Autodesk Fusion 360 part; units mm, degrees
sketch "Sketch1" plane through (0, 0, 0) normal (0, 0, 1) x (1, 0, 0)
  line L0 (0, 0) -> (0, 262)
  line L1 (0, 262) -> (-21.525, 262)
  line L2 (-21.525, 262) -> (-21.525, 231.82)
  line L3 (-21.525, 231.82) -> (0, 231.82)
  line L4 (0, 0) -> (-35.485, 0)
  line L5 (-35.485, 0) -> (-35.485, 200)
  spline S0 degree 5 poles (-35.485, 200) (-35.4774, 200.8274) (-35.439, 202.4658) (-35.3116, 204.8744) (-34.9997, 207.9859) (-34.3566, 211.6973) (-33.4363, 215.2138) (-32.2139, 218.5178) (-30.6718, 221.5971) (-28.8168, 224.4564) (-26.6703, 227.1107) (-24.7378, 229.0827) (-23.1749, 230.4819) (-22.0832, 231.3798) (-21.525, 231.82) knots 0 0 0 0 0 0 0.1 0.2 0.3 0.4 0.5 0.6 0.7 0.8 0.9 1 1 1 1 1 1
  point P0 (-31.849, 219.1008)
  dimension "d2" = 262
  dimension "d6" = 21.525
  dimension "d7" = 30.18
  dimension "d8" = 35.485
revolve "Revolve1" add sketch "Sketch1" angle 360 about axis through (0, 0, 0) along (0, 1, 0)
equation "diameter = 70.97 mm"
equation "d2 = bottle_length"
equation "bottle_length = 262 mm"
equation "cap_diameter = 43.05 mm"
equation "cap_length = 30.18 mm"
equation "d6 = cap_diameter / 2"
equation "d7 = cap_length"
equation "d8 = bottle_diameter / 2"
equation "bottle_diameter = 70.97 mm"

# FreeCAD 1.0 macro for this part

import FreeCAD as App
import Part
import Sketcher
from FreeCAD import Vector
Q = App.Units.Quantity

doc = App.newDocument("Part")
body = doc.addObject("PartDesign::Body", "Body")

# Sketch on XY plane
sketch1 = body.newObject("Sketcher::SketchObject", "Sketch")
sketch1.AttachmentSupport = (doc.getObject("XY_Plane"), [""])
sketch1.MapMode = "FlatFace"
sketch1.addGeometry([
    Part.LineSegment(Vector(-35.485, 0, 0), Vector(0, 0, 0)),  # 0
    Part.LineSegment(Vector(0, 0, 0), Vector(0, 262, 0)),  # 1
    Part.LineSegment(Vector(0, 262, 0), Vector(-21.525, 262, 0)),  # 2
    Part.LineSegment(Vector(-21.525, 262, 0), Vector(-21.525, 231.82, 0)),  # 3
    Part.BSplineCurve([Vector(-35.485, 200, 0), Vector(-35.4774, 200.8274, 0), Vector(-35.439, 202.4658, 0), Vector(-35.3116, 204.8744, 0), Vector(-34.9997, 207.9859, 0), Vector(-34.3566, 211.6973, 0), Vector(-33.4363, 215.2138, 0), Vector(-32.2139, 218.5178, 0), Vector(-30.6718, 221.5971, 0), Vector(-28.8168, 224.4564, 0), Vector(-26.6703, 227.1107, 0), Vector(-24.7378, 229.0827, 0), Vector(-23.1749, 230.4819, 0), Vector(-22.0832, 231.3798, 0), Vector(-21.525, 231.82, 0)], [6, 1, 1, 1, 1, 1, 1, 1, 1, 1, 6], [0, 0.1, 0.2, 0.3, 0.4, 0.5, 0.6, 0.7, 0.8, 0.9, 1], False, 5, [1, 1, 1, 1, 1, 1, 1, 1, 1, 1, 1, 1, 1, 1, 1], False),  # 4
    Part.LineSegment(Vector(-35.485, 200, 0), Vector(-35.485, 0, 0)),  # 5
], False)
sketch1.addConstraint([
    Sketcher.Constraint("Block", 4),
    Sketcher.Constraint("Coincident", 0, 2, 1, 1),
    Sketcher.Constraint("Coincident", 1, 2, 2, 1),
    Sketcher.Constraint("Coincident", 2, 2, 3, 1),
    Sketcher.Constraint("Coincident", 3, 2, 4, 2),
    Sketcher.Constraint("Coincident", 4, 1, 5, 1),
    Sketcher.Constraint("Coincident", 5, 2, 0, 1),
    Sketcher.Constraint("Horizontal", 0),
    Sketcher.Constraint("Vertical", 1),
    Sketcher.Constraint("Horizontal", 2),
    Sketcher.Constraint("Vertical", 3),
    Sketcher.Constraint("Vertical", 5),
    Sketcher.Constraint("Coincident", 0, 2, -1, 1),
    Sketcher.Constraint("DistanceY", 1, 1, 1, 2, Q("262 mm")),
])
revolution = body.newObject("PartDesign::Revolution", "Revolution")
revolution.Profile = sketch1
revolution.ReferenceAxis = (sketch1, ["V_Axis"])
revolution.Angle = 360

doc.recompute()
